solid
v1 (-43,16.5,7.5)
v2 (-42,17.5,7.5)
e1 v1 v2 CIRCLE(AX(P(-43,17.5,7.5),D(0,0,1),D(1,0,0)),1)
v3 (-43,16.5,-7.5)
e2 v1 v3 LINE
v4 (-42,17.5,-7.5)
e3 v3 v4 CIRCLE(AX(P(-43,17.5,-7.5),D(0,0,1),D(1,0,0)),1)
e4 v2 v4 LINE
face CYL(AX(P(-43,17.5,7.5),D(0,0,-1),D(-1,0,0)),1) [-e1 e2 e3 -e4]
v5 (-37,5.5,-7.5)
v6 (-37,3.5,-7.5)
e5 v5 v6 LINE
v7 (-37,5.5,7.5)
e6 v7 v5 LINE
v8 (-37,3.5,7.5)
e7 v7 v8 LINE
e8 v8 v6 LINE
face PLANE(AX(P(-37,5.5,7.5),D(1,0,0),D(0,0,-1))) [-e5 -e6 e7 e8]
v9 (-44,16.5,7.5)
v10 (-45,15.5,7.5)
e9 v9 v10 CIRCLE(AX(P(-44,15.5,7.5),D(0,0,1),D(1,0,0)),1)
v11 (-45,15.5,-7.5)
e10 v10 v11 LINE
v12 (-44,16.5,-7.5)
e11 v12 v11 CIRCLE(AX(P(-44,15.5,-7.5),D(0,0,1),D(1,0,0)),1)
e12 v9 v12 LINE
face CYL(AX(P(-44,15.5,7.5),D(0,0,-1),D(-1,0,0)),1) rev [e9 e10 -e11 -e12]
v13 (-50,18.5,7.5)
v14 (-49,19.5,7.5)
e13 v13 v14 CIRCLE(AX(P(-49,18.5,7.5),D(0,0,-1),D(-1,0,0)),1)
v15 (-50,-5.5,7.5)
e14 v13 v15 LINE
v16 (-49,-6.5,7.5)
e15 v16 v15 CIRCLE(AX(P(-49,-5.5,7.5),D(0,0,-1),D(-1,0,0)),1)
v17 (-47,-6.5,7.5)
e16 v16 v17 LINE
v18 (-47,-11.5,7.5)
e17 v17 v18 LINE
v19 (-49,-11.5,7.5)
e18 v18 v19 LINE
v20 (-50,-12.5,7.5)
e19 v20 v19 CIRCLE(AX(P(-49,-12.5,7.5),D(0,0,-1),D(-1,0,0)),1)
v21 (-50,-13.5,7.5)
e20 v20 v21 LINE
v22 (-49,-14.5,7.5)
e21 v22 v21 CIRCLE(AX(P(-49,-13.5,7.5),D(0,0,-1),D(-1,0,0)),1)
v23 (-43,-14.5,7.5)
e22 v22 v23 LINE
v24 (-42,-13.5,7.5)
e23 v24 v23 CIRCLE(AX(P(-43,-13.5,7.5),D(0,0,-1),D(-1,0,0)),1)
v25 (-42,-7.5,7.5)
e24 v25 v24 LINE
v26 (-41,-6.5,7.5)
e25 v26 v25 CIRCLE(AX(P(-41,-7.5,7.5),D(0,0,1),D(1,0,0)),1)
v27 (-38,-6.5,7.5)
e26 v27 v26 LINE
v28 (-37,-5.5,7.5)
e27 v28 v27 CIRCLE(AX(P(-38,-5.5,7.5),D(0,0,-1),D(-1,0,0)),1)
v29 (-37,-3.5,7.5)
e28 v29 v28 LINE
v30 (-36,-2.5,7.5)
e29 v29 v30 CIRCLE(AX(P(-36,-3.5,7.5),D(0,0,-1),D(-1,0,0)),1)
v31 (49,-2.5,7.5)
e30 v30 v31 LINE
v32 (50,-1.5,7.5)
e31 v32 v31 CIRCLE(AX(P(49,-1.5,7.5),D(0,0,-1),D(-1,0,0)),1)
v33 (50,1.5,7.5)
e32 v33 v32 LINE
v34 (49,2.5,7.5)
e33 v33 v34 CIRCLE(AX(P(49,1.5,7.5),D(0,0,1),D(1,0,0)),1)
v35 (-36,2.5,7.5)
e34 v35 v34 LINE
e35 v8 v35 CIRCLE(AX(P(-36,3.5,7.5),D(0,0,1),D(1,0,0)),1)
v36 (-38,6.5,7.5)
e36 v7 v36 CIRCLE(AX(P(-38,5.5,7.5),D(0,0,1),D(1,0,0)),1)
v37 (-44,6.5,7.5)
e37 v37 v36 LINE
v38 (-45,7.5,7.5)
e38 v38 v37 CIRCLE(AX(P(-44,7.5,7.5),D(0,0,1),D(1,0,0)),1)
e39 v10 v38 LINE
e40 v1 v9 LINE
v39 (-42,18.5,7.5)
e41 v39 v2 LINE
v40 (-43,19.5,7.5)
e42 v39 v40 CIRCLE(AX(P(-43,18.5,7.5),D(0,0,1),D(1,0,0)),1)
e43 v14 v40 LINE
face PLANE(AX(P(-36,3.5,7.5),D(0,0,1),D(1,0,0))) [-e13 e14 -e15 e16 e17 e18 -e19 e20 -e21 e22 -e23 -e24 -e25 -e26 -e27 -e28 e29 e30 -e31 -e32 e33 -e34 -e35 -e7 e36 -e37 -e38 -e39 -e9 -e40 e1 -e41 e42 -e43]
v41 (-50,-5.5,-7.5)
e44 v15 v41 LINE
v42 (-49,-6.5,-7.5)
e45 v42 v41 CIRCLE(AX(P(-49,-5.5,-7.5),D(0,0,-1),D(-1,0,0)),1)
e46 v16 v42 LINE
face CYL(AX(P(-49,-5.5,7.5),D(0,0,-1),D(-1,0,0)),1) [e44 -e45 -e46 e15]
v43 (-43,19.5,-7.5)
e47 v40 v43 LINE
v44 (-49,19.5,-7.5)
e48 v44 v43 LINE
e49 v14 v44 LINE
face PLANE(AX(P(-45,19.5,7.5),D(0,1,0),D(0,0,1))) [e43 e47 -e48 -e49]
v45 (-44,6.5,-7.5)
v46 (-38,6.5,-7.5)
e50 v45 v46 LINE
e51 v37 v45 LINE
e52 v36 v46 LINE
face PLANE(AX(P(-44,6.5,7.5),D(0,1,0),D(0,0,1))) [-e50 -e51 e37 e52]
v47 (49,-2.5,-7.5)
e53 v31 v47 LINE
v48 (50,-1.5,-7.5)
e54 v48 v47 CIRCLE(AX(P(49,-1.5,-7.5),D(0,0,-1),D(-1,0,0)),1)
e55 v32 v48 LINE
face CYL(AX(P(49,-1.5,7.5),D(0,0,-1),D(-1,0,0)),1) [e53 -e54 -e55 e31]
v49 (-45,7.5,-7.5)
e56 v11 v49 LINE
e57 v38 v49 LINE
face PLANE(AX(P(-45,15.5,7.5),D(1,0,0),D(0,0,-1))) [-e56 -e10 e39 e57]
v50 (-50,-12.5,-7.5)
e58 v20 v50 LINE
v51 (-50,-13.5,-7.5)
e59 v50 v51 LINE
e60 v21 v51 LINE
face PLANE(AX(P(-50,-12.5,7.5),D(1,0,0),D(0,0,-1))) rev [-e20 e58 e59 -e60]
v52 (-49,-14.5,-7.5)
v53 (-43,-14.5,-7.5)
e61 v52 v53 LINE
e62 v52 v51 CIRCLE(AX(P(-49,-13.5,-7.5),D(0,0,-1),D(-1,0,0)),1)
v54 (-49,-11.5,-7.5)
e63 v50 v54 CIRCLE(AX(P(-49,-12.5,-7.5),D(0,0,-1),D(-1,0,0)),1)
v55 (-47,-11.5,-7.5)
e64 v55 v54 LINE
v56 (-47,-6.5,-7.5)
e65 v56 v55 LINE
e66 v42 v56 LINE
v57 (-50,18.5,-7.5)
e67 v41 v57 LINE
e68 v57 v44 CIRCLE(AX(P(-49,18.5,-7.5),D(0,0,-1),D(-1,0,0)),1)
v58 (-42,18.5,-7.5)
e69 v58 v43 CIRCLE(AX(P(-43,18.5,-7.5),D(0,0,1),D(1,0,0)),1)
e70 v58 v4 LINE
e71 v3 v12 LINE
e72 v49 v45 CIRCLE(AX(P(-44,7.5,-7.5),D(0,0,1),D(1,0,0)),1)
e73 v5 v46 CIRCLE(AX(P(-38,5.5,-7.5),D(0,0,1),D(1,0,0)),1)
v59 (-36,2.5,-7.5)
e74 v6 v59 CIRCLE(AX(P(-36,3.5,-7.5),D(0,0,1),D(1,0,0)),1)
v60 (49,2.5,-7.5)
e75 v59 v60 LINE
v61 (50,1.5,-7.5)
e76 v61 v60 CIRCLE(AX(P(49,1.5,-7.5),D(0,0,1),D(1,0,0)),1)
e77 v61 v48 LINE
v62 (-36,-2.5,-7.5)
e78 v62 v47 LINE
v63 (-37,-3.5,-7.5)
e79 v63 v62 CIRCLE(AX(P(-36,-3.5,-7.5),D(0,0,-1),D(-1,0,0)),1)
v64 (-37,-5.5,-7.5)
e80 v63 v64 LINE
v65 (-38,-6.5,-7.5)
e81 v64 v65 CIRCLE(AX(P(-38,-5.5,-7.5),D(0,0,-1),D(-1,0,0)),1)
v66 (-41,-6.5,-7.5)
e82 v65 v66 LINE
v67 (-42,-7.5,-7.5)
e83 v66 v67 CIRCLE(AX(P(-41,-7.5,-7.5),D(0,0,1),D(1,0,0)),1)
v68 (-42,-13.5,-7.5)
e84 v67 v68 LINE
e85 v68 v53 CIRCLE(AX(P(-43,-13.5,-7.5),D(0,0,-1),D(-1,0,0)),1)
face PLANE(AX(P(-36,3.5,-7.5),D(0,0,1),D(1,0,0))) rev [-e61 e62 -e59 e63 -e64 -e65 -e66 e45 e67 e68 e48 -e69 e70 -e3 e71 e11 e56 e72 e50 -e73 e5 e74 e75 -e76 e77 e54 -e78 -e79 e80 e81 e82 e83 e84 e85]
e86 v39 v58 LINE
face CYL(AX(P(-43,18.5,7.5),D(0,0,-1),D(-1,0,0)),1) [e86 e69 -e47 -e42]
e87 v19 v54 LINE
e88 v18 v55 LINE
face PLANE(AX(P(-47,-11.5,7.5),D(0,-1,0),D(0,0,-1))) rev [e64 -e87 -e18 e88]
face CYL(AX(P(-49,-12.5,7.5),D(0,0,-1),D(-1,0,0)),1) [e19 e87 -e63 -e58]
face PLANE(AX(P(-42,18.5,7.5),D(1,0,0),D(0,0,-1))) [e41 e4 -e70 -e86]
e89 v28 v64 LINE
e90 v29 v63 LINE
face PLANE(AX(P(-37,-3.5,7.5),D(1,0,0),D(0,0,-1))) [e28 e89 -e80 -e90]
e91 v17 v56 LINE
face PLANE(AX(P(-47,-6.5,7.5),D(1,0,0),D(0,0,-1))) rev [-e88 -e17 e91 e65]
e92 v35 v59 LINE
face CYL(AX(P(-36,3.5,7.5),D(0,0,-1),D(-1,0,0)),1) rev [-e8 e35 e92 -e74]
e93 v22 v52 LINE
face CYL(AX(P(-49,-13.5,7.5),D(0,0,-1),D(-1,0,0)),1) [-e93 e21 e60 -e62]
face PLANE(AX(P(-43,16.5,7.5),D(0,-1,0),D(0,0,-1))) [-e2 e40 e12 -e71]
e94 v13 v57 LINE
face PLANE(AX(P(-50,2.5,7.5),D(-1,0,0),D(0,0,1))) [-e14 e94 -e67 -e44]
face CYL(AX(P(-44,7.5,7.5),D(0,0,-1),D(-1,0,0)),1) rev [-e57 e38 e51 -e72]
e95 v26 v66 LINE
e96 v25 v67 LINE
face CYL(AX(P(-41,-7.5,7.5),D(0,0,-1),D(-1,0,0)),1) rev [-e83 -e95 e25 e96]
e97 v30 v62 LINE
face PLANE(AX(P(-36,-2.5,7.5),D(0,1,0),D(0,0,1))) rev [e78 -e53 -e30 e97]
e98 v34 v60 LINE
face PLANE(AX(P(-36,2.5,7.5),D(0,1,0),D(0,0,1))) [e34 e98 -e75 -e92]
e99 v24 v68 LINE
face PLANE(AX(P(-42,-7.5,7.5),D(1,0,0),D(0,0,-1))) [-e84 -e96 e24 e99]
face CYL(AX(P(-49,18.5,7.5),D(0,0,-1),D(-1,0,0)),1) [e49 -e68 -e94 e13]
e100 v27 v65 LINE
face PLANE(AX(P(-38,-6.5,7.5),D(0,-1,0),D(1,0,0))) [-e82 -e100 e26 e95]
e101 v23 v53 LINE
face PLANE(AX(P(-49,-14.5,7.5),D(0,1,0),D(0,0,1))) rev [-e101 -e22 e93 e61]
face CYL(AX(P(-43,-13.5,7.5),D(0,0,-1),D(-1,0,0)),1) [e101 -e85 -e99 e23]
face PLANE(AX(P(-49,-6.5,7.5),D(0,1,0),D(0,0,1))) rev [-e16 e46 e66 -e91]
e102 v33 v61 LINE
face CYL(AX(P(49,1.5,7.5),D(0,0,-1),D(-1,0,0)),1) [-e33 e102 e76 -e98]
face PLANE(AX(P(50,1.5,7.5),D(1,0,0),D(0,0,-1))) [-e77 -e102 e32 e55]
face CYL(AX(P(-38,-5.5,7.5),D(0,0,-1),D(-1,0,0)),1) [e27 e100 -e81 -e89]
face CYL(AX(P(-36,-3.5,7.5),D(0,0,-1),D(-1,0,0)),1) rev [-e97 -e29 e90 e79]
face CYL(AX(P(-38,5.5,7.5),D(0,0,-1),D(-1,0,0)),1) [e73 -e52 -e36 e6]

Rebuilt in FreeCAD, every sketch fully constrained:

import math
import FreeCAD as App
import Part
import Sketcher

doc = App.newDocument("Part")
body = doc.addObject("PartDesign::Body", "Body")

sketch1 = body.newObject("Sketcher::SketchObject", "Sketch")
sketch1.AttachmentSupport = (doc.getObject("XY_Plane"), [""])
sketch1.MapMode = "FlatFace"
sketch1.addGeometry([
    Part.ArcOfCircle(Part.Circle(App.Vector(-49, 18.5, 0), App.Vector(0, 0, 1), 1), math.radians(90), math.radians(180)),
    Part.LineSegment(App.Vector(-50, 18.5, 0), App.Vector(-50, -5.5, 0)),
    Part.ArcOfCircle(Part.Circle(App.Vector(-49, -5.5, 0), App.Vector(0, 0, 1), 1), math.radians(-180), math.radians(-90)),
    Part.LineSegment(App.Vector(-49, -6.5, 0), App.Vector(-47, -6.5, 0)),
    Part.LineSegment(App.Vector(-47, -6.5, 0), App.Vector(-47, -11.5, 0)),
    Part.LineSegment(App.Vector(-47, -11.5, 0), App.Vector(-49, -11.5, 0)),
    Part.ArcOfCircle(Part.Circle(App.Vector(-49, -12.5, 0), App.Vector(0, 0, 1), 1), math.radians(90), math.radians(180)),
    Part.LineSegment(App.Vector(-50, -12.5, 0), App.Vector(-50, -13.5, 0)),
    Part.ArcOfCircle(Part.Circle(App.Vector(-49, -13.5, 0), App.Vector(0, 0, 1), 1), math.radians(-180), math.radians(-90)),
    Part.LineSegment(App.Vector(-49, -14.5, 0), App.Vector(-43, -14.5, 0)),
    Part.ArcOfCircle(Part.Circle(App.Vector(-43, -13.5, 0), App.Vector(0, 0, 1), 1), math.radians(-90), math.radians(0)),
    Part.LineSegment(App.Vector(-42, -13.5, 0), App.Vector(-42, -7.5, 0)),
    Part.ArcOfCircle(Part.Circle(App.Vector(-41, -7.5, 0), App.Vector(0, 0, 1), 1), math.radians(90), math.radians(180)),
    Part.LineSegment(App.Vector(-41, -6.5, 0), App.Vector(-38, -6.5, 0)),
    Part.ArcOfCircle(Part.Circle(App.Vector(-38, -5.5, 0), App.Vector(0, 0, 1), 1), math.radians(-90), math.radians(0)),
    Part.LineSegment(App.Vector(-37, -5.5, 0), App.Vector(-37, -3.5, 0)),
    Part.ArcOfCircle(Part.Circle(App.Vector(-36, -3.5, 0), App.Vector(0, 0, 1), 1), math.radians(90), math.radians(180)),
    Part.LineSegment(App.Vector(-36, -2.5, 0), App.Vector(49, -2.5, 0)),
    Part.ArcOfCircle(Part.Circle(App.Vector(49, -1.5, 0), App.Vector(0, 0, 1), 1), math.radians(-90), math.radians(0)),
    Part.LineSegment(App.Vector(50, -1.5, 0), App.Vector(50, 1.5, 0)),
    Part.ArcOfCircle(Part.Circle(App.Vector(49, 1.5, 0), App.Vector(0, 0, 1), 1), math.radians(0), math.radians(90)),
    Part.LineSegment(App.Vector(49, 2.5, 0), App.Vector(-36, 2.5, 0)),
    Part.ArcOfCircle(Part.Circle(App.Vector(-36, 3.5, 0), App.Vector(0, 0, 1), 1), math.radians(-180), math.radians(-90)),
    Part.LineSegment(App.Vector(-37, 3.5, 0), App.Vector(-37, 5.5, 0)),
    Part.ArcOfCircle(Part.Circle(App.Vector(-38, 5.5, 0), App.Vector(0, 0, 1), 1), math.radians(0), math.radians(90)),
    Part.LineSegment(App.Vector(-38, 6.5, 0), App.Vector(-44, 6.5, 0)),
    Part.ArcOfCircle(Part.Circle(App.Vector(-44, 7.5, 0), App.Vector(0, 0, 1), 1), math.radians(-180), math.radians(-90)),
    Part.LineSegment(App.Vector(-45, 7.5, 0), App.Vector(-45, 15.5, 0)),
    Part.ArcOfCircle(Part.Circle(App.Vector(-44, 15.5, 0), App.Vector(0, 0, 1), 1), math.radians(90), math.radians(180)),
    Part.LineSegment(App.Vector(-44, 16.5, 0), App.Vector(-43, 16.5, 0)),
    Part.ArcOfCircle(Part.Circle(App.Vector(-43, 17.5, 0), App.Vector(0, 0, 1), 1), math.radians(-90), math.radians(0)),
    Part.LineSegment(App.Vector(-42, 17.5, 0), App.Vector(-42, 18.5, 0)),
    Part.ArcOfCircle(Part.Circle(App.Vector(-43, 18.5, 0), App.Vector(0, 0, 1), 1), math.radians(0), math.radians(90)),
    Part.LineSegment(App.Vector(-43, 19.5, 0), App.Vector(-49, 19.5, 0)),
], False)
sketch1.addConstraint([
    Sketcher.Constraint("Tangent", 0, 2, 1, 1),
    Sketcher.Constraint("Tangent", 1, 2, 2, 1),
    Sketcher.Constraint("Tangent", 2, 2, 3, 1),
    Sketcher.Constraint("Coincident", 3, 2, 4, 1),
    Sketcher.Constraint("Coincident", 4, 2, 5, 1),
    Sketcher.Constraint("Tangent", 5, 2, 6, 1),
    Sketcher.Constraint("Tangent", 6, 2, 7, 1),
    Sketcher.Constraint("Tangent", 7, 2, 8, 1),
    Sketcher.Constraint("Tangent", 8, 2, 9, 1),
    Sketcher.Constraint("Tangent", 9, 2, 10, 1),
    Sketcher.Constraint("Tangent", 10, 2, 11, 1),
    Sketcher.Constraint("Tangent", 11, 2, 12, 2),
    Sketcher.Constraint("Tangent", 12, 1, 13, 1),
    Sketcher.Constraint("Tangent", 13, 2, 14, 1),
    Sketcher.Constraint("Tangent", 14, 2, 15, 1),
    Sketcher.Constraint("Tangent", 15, 2, 16, 2),
    Sketcher.Constraint("Tangent", 16, 1, 17, 1),
    Sketcher.Constraint("Tangent", 17, 2, 18, 1),
    Sketcher.Constraint("Tangent", 18, 2, 19, 1),
    Sketcher.Constraint("Tangent", 19, 2, 20, 1),
    Sketcher.Constraint("Tangent", 20, 2, 21, 1),
    Sketcher.Constraint("Tangent", 21, 2, 22, 2),
    Sketcher.Constraint("Tangent", 22, 1, 23, 1),
    Sketcher.Constraint("Tangent", 23, 2, 24, 1),
    Sketcher.Constraint("Tangent", 24, 2, 25, 1),
    Sketcher.Constraint("Tangent", 25, 2, 26, 2),
    Sketcher.Constraint("Tangent", 26, 1, 27, 1),
    Sketcher.Constraint("Tangent", 27, 2, 28, 2),
    Sketcher.Constraint("Tangent", 28, 1, 29, 1),
    Sketcher.Constraint("Tangent", 29, 2, 30, 1),
    Sketcher.Constraint("Tangent", 30, 2, 31, 1),
    Sketcher.Constraint("Tangent", 31, 2, 32, 1),
    Sketcher.Constraint("Tangent", 32, 2, 33, 1),
    Sketcher.Constraint("Tangent", 33, 2, 0, 1),
    Sketcher.Constraint("Vertical", 1),
    Sketcher.Constraint("Horizontal", 3),
    Sketcher.Constraint("Vertical", 4),
    Sketcher.Constraint("Horizontal", 5),
    Sketcher.Constraint("Vertical", 7),
    Sketcher.Constraint("Horizontal", 9),
    Sketcher.Constraint("Vertical", 11),
    Sketcher.Constraint("Horizontal", 13),
    Sketcher.Constraint("Vertical", 15),
    Sketcher.Constraint("Horizontal", 17),
    Sketcher.Constraint("Vertical", 19),
    Sketcher.Constraint("Horizontal", 21),
    Sketcher.Constraint("Vertical", 23),
    Sketcher.Constraint("Horizontal", 25),
    Sketcher.Constraint("Vertical", 27),
    Sketcher.Constraint("Horizontal", 29),
    Sketcher.Constraint("Vertical", 31),
    Sketcher.Constraint("Horizontal", 33),
    Sketcher.Constraint("Equal", 0, 2),
    Sketcher.Constraint("Equal", 2, 6),
    Sketcher.Constraint("Equal", 6, 8),
    Sketcher.Constraint("Equal", 8, 10),
    Sketcher.Constraint("Equal", 10, 12),
    Sketcher.Constraint("Equal", 12, 14),
    Sketcher.Constraint("Equal", 14, 16),
    Sketcher.Constraint("Equal", 16, 18),
    Sketcher.Constraint("Equal", 18, 20),
    Sketcher.Constraint("Equal", 20, 22),
    Sketcher.Constraint("Equal", 22, 24),
    Sketcher.Constraint("Equal", 24, 26),
    Sketcher.Constraint("Equal", 26, 28),
    Sketcher.Constraint("Equal", 28, 30),
    Sketcher.Constraint("Equal", 30, 32),
    Sketcher.Constraint("Symmetric", 16, 3, 22, 3, -1),
    Sketcher.Constraint("Horizontal", 2, 3, 14, 3),
    Sketcher.Constraint("Vertical", 2, 3, 6, 3),
    Sketcher.Constraint("Vertical", 10, 3, 30, 3),
    Sketcher.Constraint("Equal", 9, 25),
    Sketcher.Constraint("Equal", 29, 7),
    Sketcher.Constraint("Equal", 33, 11),
    Sketcher.Constraint("Equal", 5, 15),
    Sketcher.Constraint("Equal", 13, 19),
    Sketcher.Constraint("Equal", 15, 23),
    Sketcher.Constraint("Equal", 7, 31),
    Sketcher.Constraint("Radius", 0, 1.0),
    Sketcher.Constraint("DistanceX", 3, 1, 3, 2, 2.0),
    Sketcher.Constraint("DistanceX", 9, 1, 9, 2, 6.0),
    Sketcher.Constraint("DistanceX", 13, 1, 13, 2, 3.0),
    Sketcher.Constraint("DistanceX", 17, 1, 17, 2, 85.0),
    Sketcher.Constraint("DistanceY", 1, 2, 1, 1, 24.0),
    Sketcher.Constraint("DistanceX", 0, 3, -1, 1, 49.0),
])
pad1 = body.newObject("PartDesign::Pad", "Pad")
pad1.Profile = sketch1
pad1.Length = 15
pad1.Midplane = True

doc.recompute()
